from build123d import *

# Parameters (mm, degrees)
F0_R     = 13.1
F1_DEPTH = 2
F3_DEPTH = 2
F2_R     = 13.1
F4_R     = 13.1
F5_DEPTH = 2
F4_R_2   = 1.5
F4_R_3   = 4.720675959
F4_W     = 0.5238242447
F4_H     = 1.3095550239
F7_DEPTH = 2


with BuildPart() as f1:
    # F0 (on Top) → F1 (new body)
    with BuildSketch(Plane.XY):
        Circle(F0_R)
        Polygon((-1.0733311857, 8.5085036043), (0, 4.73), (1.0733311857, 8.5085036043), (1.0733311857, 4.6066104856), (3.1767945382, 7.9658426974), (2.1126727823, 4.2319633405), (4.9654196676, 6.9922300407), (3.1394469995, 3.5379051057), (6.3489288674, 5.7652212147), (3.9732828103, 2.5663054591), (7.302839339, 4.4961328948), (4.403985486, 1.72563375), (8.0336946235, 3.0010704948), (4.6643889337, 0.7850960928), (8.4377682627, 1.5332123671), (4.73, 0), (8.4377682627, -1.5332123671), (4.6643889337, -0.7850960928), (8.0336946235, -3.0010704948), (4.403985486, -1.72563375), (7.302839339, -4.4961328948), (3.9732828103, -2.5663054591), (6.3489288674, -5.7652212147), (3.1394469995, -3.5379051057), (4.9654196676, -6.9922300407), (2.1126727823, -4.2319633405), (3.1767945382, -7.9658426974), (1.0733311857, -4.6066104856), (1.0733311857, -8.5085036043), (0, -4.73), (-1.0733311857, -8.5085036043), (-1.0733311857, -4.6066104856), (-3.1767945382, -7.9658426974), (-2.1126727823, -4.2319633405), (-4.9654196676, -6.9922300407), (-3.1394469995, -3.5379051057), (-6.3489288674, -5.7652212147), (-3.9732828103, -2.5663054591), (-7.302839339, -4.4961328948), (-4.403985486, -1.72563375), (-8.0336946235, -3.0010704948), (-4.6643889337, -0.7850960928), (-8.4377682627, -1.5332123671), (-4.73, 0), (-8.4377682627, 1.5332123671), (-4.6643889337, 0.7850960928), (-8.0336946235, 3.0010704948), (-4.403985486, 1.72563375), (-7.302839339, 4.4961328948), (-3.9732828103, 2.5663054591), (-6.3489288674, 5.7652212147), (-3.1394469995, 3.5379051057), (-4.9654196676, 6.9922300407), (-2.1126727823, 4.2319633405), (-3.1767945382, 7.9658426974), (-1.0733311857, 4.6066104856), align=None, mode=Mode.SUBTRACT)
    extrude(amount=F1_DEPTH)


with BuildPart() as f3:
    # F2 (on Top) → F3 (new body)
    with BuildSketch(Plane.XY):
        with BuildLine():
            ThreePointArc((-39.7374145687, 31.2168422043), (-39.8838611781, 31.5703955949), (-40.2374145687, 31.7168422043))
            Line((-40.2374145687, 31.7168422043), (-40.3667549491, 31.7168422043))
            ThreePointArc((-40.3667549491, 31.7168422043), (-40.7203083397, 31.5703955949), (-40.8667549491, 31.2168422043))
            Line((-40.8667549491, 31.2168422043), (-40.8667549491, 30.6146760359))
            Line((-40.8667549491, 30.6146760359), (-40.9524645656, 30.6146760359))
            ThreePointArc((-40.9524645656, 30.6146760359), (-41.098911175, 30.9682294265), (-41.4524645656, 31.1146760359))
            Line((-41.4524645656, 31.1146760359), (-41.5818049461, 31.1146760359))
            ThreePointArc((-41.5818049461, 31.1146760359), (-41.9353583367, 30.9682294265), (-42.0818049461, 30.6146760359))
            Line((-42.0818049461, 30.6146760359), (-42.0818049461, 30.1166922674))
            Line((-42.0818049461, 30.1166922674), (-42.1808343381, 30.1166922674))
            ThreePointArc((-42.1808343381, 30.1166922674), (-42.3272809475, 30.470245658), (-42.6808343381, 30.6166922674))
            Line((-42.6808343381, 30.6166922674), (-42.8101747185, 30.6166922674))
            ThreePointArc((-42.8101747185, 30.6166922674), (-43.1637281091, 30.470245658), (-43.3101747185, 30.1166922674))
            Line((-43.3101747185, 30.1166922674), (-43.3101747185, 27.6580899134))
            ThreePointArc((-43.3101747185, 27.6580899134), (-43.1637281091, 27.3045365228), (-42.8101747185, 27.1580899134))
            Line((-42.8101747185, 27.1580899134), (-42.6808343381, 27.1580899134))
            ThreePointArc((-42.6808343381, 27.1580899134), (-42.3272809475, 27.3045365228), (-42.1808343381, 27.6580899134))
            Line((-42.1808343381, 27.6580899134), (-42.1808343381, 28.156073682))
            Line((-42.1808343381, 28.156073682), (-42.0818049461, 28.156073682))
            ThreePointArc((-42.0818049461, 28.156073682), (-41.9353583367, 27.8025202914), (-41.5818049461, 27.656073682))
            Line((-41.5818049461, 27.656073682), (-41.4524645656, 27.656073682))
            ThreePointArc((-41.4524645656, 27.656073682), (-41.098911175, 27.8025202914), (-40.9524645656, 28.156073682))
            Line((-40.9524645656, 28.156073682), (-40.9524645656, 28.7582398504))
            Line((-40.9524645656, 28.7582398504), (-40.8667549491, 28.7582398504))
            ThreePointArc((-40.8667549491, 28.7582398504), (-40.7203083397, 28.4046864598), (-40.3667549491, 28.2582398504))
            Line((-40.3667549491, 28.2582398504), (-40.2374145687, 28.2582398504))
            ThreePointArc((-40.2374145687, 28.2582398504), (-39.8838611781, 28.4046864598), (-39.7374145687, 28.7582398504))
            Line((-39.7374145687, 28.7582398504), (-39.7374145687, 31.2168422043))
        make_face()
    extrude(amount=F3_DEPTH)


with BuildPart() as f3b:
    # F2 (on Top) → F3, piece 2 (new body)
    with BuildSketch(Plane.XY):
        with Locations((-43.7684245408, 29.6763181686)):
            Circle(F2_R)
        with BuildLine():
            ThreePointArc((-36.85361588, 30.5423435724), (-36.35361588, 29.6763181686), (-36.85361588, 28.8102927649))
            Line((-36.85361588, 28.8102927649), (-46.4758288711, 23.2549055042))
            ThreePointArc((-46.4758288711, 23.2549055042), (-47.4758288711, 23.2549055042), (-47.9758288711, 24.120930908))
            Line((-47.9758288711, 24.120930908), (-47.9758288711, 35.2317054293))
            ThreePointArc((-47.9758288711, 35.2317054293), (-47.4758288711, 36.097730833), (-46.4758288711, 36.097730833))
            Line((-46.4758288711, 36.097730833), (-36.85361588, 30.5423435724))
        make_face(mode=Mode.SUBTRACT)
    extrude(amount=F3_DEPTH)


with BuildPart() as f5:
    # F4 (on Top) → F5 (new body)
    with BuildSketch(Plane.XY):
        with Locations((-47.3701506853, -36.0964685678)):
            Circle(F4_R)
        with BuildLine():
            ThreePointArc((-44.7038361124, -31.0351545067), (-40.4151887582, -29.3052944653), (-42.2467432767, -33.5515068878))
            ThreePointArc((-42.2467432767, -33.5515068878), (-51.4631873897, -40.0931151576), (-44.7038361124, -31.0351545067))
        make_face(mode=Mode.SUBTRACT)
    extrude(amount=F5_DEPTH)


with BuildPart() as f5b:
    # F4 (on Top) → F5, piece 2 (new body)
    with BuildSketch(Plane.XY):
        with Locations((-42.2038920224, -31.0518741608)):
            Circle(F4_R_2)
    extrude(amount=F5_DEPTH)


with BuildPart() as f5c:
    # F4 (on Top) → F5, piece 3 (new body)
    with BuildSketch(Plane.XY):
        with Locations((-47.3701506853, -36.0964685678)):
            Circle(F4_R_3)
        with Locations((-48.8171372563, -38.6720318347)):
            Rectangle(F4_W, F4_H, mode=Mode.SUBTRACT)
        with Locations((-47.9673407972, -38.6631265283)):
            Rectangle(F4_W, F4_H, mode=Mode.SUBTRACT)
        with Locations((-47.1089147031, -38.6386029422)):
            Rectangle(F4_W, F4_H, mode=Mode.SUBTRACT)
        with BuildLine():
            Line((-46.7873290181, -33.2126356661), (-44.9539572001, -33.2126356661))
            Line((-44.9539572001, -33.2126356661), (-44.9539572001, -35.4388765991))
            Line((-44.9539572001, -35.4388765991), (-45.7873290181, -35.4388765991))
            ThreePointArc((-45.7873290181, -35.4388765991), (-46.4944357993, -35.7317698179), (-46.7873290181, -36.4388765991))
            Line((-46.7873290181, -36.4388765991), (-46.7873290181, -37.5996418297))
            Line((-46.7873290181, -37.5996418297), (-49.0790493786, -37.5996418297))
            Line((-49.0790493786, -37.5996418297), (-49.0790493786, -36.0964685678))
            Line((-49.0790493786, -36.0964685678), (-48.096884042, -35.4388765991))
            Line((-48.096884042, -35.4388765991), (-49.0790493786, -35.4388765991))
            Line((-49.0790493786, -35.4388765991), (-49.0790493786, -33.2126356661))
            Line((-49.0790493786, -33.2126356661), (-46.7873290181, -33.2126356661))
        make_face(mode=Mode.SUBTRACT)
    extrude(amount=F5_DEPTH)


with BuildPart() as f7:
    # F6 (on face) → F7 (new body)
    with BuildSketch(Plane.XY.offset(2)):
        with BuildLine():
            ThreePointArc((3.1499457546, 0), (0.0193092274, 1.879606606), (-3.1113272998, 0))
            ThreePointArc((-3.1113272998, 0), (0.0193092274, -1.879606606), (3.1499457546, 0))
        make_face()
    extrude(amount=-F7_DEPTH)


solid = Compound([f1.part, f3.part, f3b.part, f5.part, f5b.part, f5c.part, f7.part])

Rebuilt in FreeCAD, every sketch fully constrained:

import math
import FreeCAD as App
import Part
import Sketcher
from FreeCAD import Vector
Q = App.Units.Quantity


def add_polygon(sketch, points):
    """Adds a closed chain of lines whose ends are joined by coincident constraints."""
    first, n = sketch.GeometryCount, len(points)
    for a, b in zip(points, points[1:] + points[:1]):
        sketch.addGeometry(Part.LineSegment(App.Vector(*a, 0), App.Vector(*b, 0)), False)
    for i in range(n):
        sketch.addConstraint(Sketcher.Constraint("Coincident", first + i, 2, first + (i + 1) % n, 1))

doc = App.newDocument("Part")
body = doc.addObject("PartDesign::Body", "Body")

sketch1 = body.newObject("Sketcher::SketchObject", "Sketch")
sketch1.AttachmentSupport = (doc.getObject("XY_Plane"), [""])
sketch1.MapMode = "FlatFace"
sketch1.addGeometry(Part.Circle(Vector(0, 0, 0), Vector(0, 0, 1), 13.1), False)
add_polygon(sketch1, [(-1.1, 4.6), (-1.1, 8.5), (0, 4.7), (1.1, 8.5), (1.1, 4.6), (3.2, 8), (2.1, 4.2), (5, 7), (3.1, 3.5), (6.3, 5.8), (4, 2.6), (7.3, 4.5), (4.4, 1.7), (8, 3), (4.7, 0.8), (8.4, 1.5), (4.7, 0), (8.4, -1.5), (4.7, -0.8), (8, -3), (4.4, -1.7), (7.3, -4.5), (4, -2.6), (6.3, -5.8), (3.1, -3.5), (5, -7), (2.1, -4.2), (3.2, -8), (1.1, -4.6), (1.1, -8.5), (0, -4.7), (-1.1, -8.5), (-1.1, -4.6), (-3.2, -8), (-2.1, -4.2), (-5, -7), (-3.1, -3.5), (-6.3, -5.8), (-4, -2.6), (-7.3, -4.5), (-4.4, -1.7), (-8, -3), (-4.7, -0.8), (-8.4, -1.5), (-4.7, 0), (-8.4, 1.5), (-4.7, 0.8), (-8, 3), (-4.4, 1.7), (-7.3, 4.5), (-4, 2.6), (-6.3, 5.8), (-3.1, 3.5), (-5, 7), (-2.1, 4.2), (-3.2, 8)])
sketch1.addConstraint([
    Sketcher.Constraint("Vertical", 1),
    Sketcher.Constraint("Vertical", 4),
    Sketcher.Constraint("Vertical", 29),
    Sketcher.Constraint("Vertical", 32),
    Sketcher.Constraint("Coincident", 0, 3, -1, 1),
    Sketcher.Constraint("Symmetric", 1, 2, 29, 2, -1, 1),
    Sketcher.Constraint("Symmetric", 2, 2, 30, 2, -1, 1),
    Sketcher.Constraint("Symmetric", 3, 2, 31, 2, -1, 1),
    Sketcher.Constraint("Symmetric", 5, 2, 33, 2, -1, 1),
    Sketcher.Constraint("Symmetric", 6, 2, 34, 2, -1, 1),
    Sketcher.Constraint("Symmetric", 7, 2, 35, 2, -1, 1),
    Sketcher.Constraint("Symmetric", 8, 2, 36, 2, -1, 1),
    Sketcher.Constraint("Symmetric", 9, 2, 37, 2, -1, 1),
    Sketcher.Constraint("Symmetric", 10, 2, 38, 2, -1, 1),
    Sketcher.Constraint("Symmetric", 11, 2, 39, 2, -1, 1),
    Sketcher.Constraint("Symmetric", 12, 2, 40, 2, -1, 1),
    Sketcher.Constraint("Symmetric", 13, 2, 41, 2, -1, 1),
    Sketcher.Constraint("Symmetric", 14, 2, 42, 2, -1, 1),
    Sketcher.Constraint("Symmetric", 15, 2, 43, 2, -1, 1),
    Sketcher.Constraint("Symmetric", 16, 2, 44, 2, -1, 1),
    Sketcher.Constraint("Symmetric", 17, 2, 45, 2, -1, 1),
    Sketcher.Constraint("Symmetric", 18, 2, 46, 2, -1, 1),
    Sketcher.Constraint("Symmetric", 19, 2, 47, 2, -1, 1),
    Sketcher.Constraint("Symmetric", 20, 2, 48, 2, -1, 1),
    Sketcher.Constraint("Symmetric", 21, 2, 49, 2, -1, 1),
    Sketcher.Constraint("Symmetric", 22, 2, 50, 2, -1, 1),
    Sketcher.Constraint("Symmetric", 23, 2, 51, 2, -1, 1),
    Sketcher.Constraint("Symmetric", 24, 2, 52, 2, -1, 1),
    Sketcher.Constraint("Symmetric", 25, 2, 53, 2, -1, 1),
    Sketcher.Constraint("Symmetric", 26, 2, 54, 2, -1, 1),
    Sketcher.Constraint("Symmetric", 27, 2, 55, 2, -1, 1),
    Sketcher.Constraint("Symmetric", 1, 2, 3, 2, -2),
    Sketcher.Constraint("Symmetric", 27, 2, 33, 2, -2),
    Sketcher.Constraint("Symmetric", 26, 2, 34, 2, -2),
    Sketcher.Constraint("Symmetric", 25, 2, 35, 2, -2),
    Sketcher.Constraint("Symmetric", 24, 2, 36, 2, -2),
    Sketcher.Constraint("Symmetric", 23, 2, 37, 2, -2),
    Sketcher.Constraint("Symmetric", 22, 2, 38, 2, -2),
    Sketcher.Constraint("Symmetric", 21, 2, 39, 2, -2),
    Sketcher.Constraint("Symmetric", 20, 2, 40, 2, -2),
    Sketcher.Constraint("Symmetric", 19, 2, 41, 2, -2),
    Sketcher.Constraint("Symmetric", 18, 2, 42, 2, -2),
    Sketcher.Constraint("Symmetric", 17, 2, 43, 2, -2),
    Sketcher.Constraint("PointOnObject", 2, 2, -2),
    Sketcher.Constraint("PointOnObject", 16, 2, -1),
    Sketcher.Constraint("Parallel", 5, 33),
    Sketcher.Constraint("Parallel", 28, 56),
    Sketcher.Constraint("Horizontal", 28, 2, 32, 2),
    Sketcher.Constraint("Diameter", 0, Q("26.2 mm")),
    Sketcher.Constraint("DistanceY", -1, 1, 2, 2, Q("4.73 mm")),
    Sketcher.Constraint("DistanceX", -1, 1, 16, 2, Q("4.73 mm")),
    Sketcher.Constraint("Distance", 11, Q("3.8484 mm")),
    Sketcher.Constraint("DistanceY", 10, 2, 8, 2, Q("0.9716 mm")),
    Sketcher.Constraint("DistanceY", 12, 2, 11, 2, Q("2.770499 mm")),
    Sketcher.Constraint("DistanceY", 18, 2, 10, 2, Q("3.351402 mm")),
    Sketcher.Constraint("DistanceY", 29, 2, 24, 2, Q("4.970598 mm")),
    Sketcher.Constraint("Distance", 7, Q("3.969539 mm")),
    Sketcher.Constraint("Distance", 8, Q("3.907242 mm")),
    Sketcher.Constraint("Distance", 14, Q("4.032712 mm")),
    Sketcher.Constraint("DistanceY", 1, 1, 1, 2, Q("3.901893 mm")),
    Sketcher.Constraint("DistanceX", 1, 2, -1, 1, Q("1.073331 mm")),
    Sketcher.Constraint("DistanceY", -1, 1, 4, 2, Q("4.60661 mm")),
    Sketcher.Constraint("DistanceX", -1, 1, 7, 2, Q("4.96542 mm")),
    Sketcher.Constraint("DistanceY", -1, 1, 7, 2, Q("6.99223 mm")),
    Sketcher.Constraint("DistanceX", -1, 1, 9, 2, Q("6.348929 mm")),
    Sketcher.Constraint("DistanceY", -1, 1, 9, 2, Q("5.765221 mm")),
    Sketcher.Constraint("DistanceX", -1, 1, 11, 2, Q("7.302839 mm")),
    Sketcher.Constraint("DistanceY", -1, 1, 13, 2, Q("3.00107 mm")),
    Sketcher.Constraint("DistanceX", -1, 1, 14, 2, Q("4.664389 mm")),
    Sketcher.Constraint("DistanceX", -1, 1, 15, 2, Q("8.437768 mm")),
    Sketcher.Constraint("DistanceY", 5, 2, 3, 2, Q("0.542661 mm")),
    Sketcher.Constraint("DistanceX", 4, 2, 6, 2, Q("1.039342 mm")),
    Sketcher.Constraint("DistanceX", 6, 2, 5, 2, Q("1.064122 mm")),
    Sketcher.Constraint("DistanceX", 6, 2, 10, 2, Q("1.86061 mm")),
    Sketcher.Constraint("DistanceX", 8, 2, 12, 2, Q("1.264538 mm")),
    Sketcher.Constraint("DistanceY", 15, 2, 13, 2, Q("1.467858 mm")),
])
pad1 = body.newObject("PartDesign::Pad", "Pad")
pad1.Profile = sketch1
pad1.Length = 2
body2 = doc.addObject("PartDesign::Body", "Body001")

sketch2 = body2.newObject("Sketcher::SketchObject", "Sketch001")
sketch2.AttachmentSupport = (doc.getObject("XY_Plane001"), [""])
sketch2.MapMode = "FlatFace"
sketch2.addGeometry([
    Part.ArcOfCircle(Part.Circle(Vector(-40.24, 31.22, 0), Vector(0, 0, 1), 0.5), math.radians(0), math.radians(90)),
    Part.LineSegment(Vector(-40.24, 31.72, 0), Vector(-40.37, 31.72, 0)),
    Part.ArcOfCircle(Part.Circle(Vector(-40.37, 31.22, 0), Vector(0, 0, 1), 0.5), math.radians(90), math.radians(180)),
    Part.LineSegment(Vector(-40.87, 31.22, 0), Vector(-40.87, 30.61, 0)),
    Part.LineSegment(Vector(-40.87, 30.61, 0), Vector(-40.95, 30.61, 0)),
    Part.ArcOfCircle(Part.Circle(Vector(-41.45, 30.61, 0), Vector(0, 0, 1), 0.5), math.radians(0), math.radians(90)),
    Part.LineSegment(Vector(-41.45, 31.11, 0), Vector(-41.58, 31.11, 0)),
    Part.ArcOfCircle(Part.Circle(Vector(-41.58, 30.61, 0), Vector(0, 0, 1), 0.5), math.radians(90), math.radians(180)),
    Part.LineSegment(Vector(-42.08, 30.61, 0), Vector(-42.08, 30.12, 0)),
    Part.LineSegment(Vector(-42.08, 30.12, 0), Vector(-42.18, 30.12, 0)),
    Part.ArcOfCircle(Part.Circle(Vector(-42.68, 30.12, 0), Vector(0, 0, 1), 0.5), math.radians(0), math.radians(90)),
    Part.LineSegment(Vector(-42.68, 30.62, 0), Vector(-42.81, 30.62, 0)),
    Part.ArcOfCircle(Part.Circle(Vector(-42.81, 30.12, 0), Vector(0, 0, 1), 0.5), math.radians(90), math.radians(180)),
    Part.LineSegment(Vector(-43.31, 30.12, 0), Vector(-43.31, 27.66, 0)),
    Part.ArcOfCircle(Part.Circle(Vector(-42.81, 27.66, 0), Vector(0, 0, 1), 0.5), math.radians(180), math.radians(270)),
    Part.LineSegment(Vector(-42.81, 27.16, 0), Vector(-42.68, 27.16, 0)),
    Part.ArcOfCircle(Part.Circle(Vector(-42.68, 27.66, 0), Vector(0, 0, 1), 0.5), math.radians(-90), math.radians(0)),
    Part.LineSegment(Vector(-42.18, 27.66, 0), Vector(-42.18, 28.16, 0)),
    Part.LineSegment(Vector(-42.18, 28.16, 0), Vector(-42.08, 28.16, 0)),
    Part.ArcOfCircle(Part.Circle(Vector(-41.58, 28.16, 0), Vector(0, 0, 1), 0.5), math.radians(180), math.radians(270)),
    Part.LineSegment(Vector(-41.58, 27.66, 0), Vector(-41.45, 27.66, 0)),
    Part.ArcOfCircle(Part.Circle(Vector(-41.45, 28.16, 0), Vector(0, 0, 1), 0.5), math.radians(-90), math.radians(0)),
    Part.LineSegment(Vector(-40.95, 28.16, 0), Vector(-40.95, 28.76, 0)),
    Part.LineSegment(Vector(-40.95, 28.76, 0), Vector(-40.87, 28.76, 0)),
    Part.ArcOfCircle(Part.Circle(Vector(-40.37, 28.76, 0), Vector(0, 0, 1), 0.5), math.radians(180), math.radians(270)),
    Part.LineSegment(Vector(-40.37, 28.26, 0), Vector(-40.24, 28.26, 0)),
    Part.ArcOfCircle(Part.Circle(Vector(-40.24, 28.76, 0), Vector(0, 0, 1), 0.5), math.radians(-90), math.radians(0)),
    Part.LineSegment(Vector(-39.74, 28.76, 0), Vector(-39.74, 31.22, 0)),
], False)
sketch2.addConstraint([
    Sketcher.Constraint("Tangent", 0, 2, 1, 1),
    Sketcher.Constraint("Tangent", 1, 2, 2, 1),
    Sketcher.Constraint("Tangent", 2, 2, 3, 1),
    Sketcher.Constraint("Coincident", 3, 2, 4, 1),
    Sketcher.Constraint("Coincident", 4, 2, 5, 1),
    Sketcher.Constraint("Tangent", 5, 2, 6, 1),
    Sketcher.Constraint("Tangent", 6, 2, 7, 1),
    Sketcher.Constraint("Tangent", 7, 2, 8, 1),
    Sketcher.Constraint("Coincident", 8, 2, 9, 1),
    Sketcher.Constraint("Coincident", 9, 2, 10, 1),
    Sketcher.Constraint("Tangent", 10, 2, 11, 1),
    Sketcher.Constraint("Tangent", 11, 2, 12, 1),
    Sketcher.Constraint("Tangent", 12, 2, 13, 1),
    Sketcher.Constraint("Tangent", 13, 2, 14, 1),
    Sketcher.Constraint("Tangent", 14, 2, 15, 1),
    Sketcher.Constraint("Tangent", 15, 2, 16, 1),
    Sketcher.Constraint("Tangent", 16, 2, 17, 1),
    Sketcher.Constraint("Coincident", 17, 2, 18, 1),
    Sketcher.Constraint("Coincident", 18, 2, 19, 1),
    Sketcher.Constraint("Tangent", 19, 2, 20, 1),
    Sketcher.Constraint("Tangent", 20, 2, 21, 1),
    Sketcher.Constraint("Tangent", 21, 2, 22, 1),
    Sketcher.Constraint("Coincident", 22, 2, 23, 1),
    Sketcher.Constraint("Coincident", 23, 2, 24, 1),
    Sketcher.Constraint("Tangent", 24, 2, 25, 1),
    Sketcher.Constraint("Tangent", 25, 2, 26, 1),
    Sketcher.Constraint("Tangent", 26, 2, 27, 1),
    Sketcher.Constraint("Tangent", 27, 2, 0, 1),
    Sketcher.Constraint("Horizontal", 1),
    Sketcher.Constraint("Vertical", 3),
    Sketcher.Constraint("Horizontal", 4),
    Sketcher.Constraint("Horizontal", 6),
    Sketcher.Constraint("Vertical", 8),
    Sketcher.Constraint("Horizontal", 9),
    Sketcher.Constraint("Horizontal", 11),
    Sketcher.Constraint("Vertical", 13),
    Sketcher.Constraint("Horizontal", 15),
    Sketcher.Constraint("Vertical", 17),
    Sketcher.Constraint("Horizontal", 18),
    Sketcher.Constraint("Horizontal", 20),
    Sketcher.Constraint("Vertical", 22),
    Sketcher.Constraint("Horizontal", 23),
    Sketcher.Constraint("Horizontal", 25),
    Sketcher.Constraint("Vertical", 27),
    Sketcher.Constraint("Equal", 0, 2),
    Sketcher.Constraint("Equal", 2, 5),
    Sketcher.Constraint("Equal", 5, 7),
    Sketcher.Constraint("Equal", 7, 10),
    Sketcher.Constraint("Equal", 10, 12),
    Sketcher.Constraint("Equal", 12, 14),
    Sketcher.Constraint("Equal", 14, 16),
    Sketcher.Constraint("Equal", 16, 19),
    Sketcher.Constraint("Equal", 19, 21),
    Sketcher.Constraint("Equal", 21, 24),
    Sketcher.Constraint("Equal", 24, 26),
    Sketcher.Constraint("Horizontal", 7, 3, 3, 2),
    Sketcher.Constraint("Horizontal", 12, 3, 8, 2),
    Sketcher.Constraint("Horizontal", 21, 3, 17, 2),
    Sketcher.Constraint("Horizontal", 26, 3, 22, 2),
    Sketcher.Constraint("Vertical", 10, 3, 16, 3),
    Sketcher.Constraint("Vertical", 7, 3, 19, 3),
    Sketcher.Constraint("Vertical", 5, 3, 21, 3),
    Sketcher.Constraint("Vertical", 2, 3, 24, 3),
    Sketcher.Constraint("Equal", 1, 6),
    Sketcher.Constraint("Equal", 6, 11),
    Sketcher.Constraint("Equal", 8, 17),
    Sketcher.Constraint("Equal", 3, 22),
    Sketcher.Constraint("Radius", 0, Q("0.5 mm")),
    Sketcher.Constraint("DistanceX", 1, 2, 1, 1, Q("0.12934 mm")),
    Sketcher.Constraint("DistanceX", 4, 2, 4, 1, Q("0.08571 mm")),
    Sketcher.Constraint("DistanceX", 9, 2, 9, 1, Q("0.099029 mm")),
    Sketcher.Constraint("DistanceY", 3, 2, 3, 1, Q("0.602166 mm")),
    Sketcher.Constraint("DistanceY", 8, 2, 8, 1, Q("0.497984 mm")),
    Sketcher.Constraint("DistanceY", 13, 2, 13, 1, Q("2.458602 mm")),
    Sketcher.Constraint("DistanceY", -1, 1, 14, 3, Q("27.65809 mm")),
    Sketcher.Constraint("DistanceX", 0, 3, -1, 1, Q("40.237415 mm")),
])
pad2 = body2.newObject("PartDesign::Pad", "Pad001")
pad2.Profile = sketch2
pad2.Length = 2
body3 = doc.addObject("PartDesign::Body", "Body002")

sketch3 = body3.newObject("Sketcher::SketchObject", "Sketch002")
sketch3.AttachmentSupport = (doc.getObject("XY_Plane002"), [""])
sketch3.MapMode = "FlatFace"
sketch3.addGeometry([
    Part.Circle(Vector(-43.8, 29.7, 0), Vector(0, 0, 1), 13.1),
    Part.LineSegment(Vector(-46.5, 36.1, 0), Vector(-36.9, 30.5, 0)),
    Part.ArcOfCircle(Part.Circle(Vector(-37.4, 29.7, 0), Vector(0, 0, 1), 1), math.radians(-60), math.radians(60)),
    Part.LineSegment(Vector(-36.9, 28.8, 0), Vector(-46.5, 23.3, 0)),
    Part.ArcOfCircle(Part.Circle(Vector(-47, 24.1, 0), Vector(0, 0, 1), 1), math.radians(180), math.radians(300)),
    Part.LineSegment(Vector(-48, 24.1, 0), Vector(-48, 35.2, 0)),
    Part.ArcOfCircle(Part.Circle(Vector(-47, 35.2, 0), Vector(0, 0, 1), 1), math.radians(60), math.radians(180)),
], False)
sketch3.addConstraint([
    Sketcher.Constraint("Tangent", 1, 2, 2, 2),
    Sketcher.Constraint("Tangent", 2, 1, 3, 1),
    Sketcher.Constraint("Tangent", 3, 2, 4, 2),
    Sketcher.Constraint("Tangent", 4, 1, 5, 1),
    Sketcher.Constraint("Tangent", 5, 2, 6, 2),
    Sketcher.Constraint("Tangent", 6, 1, 1, 1),
    Sketcher.Constraint("Vertical", 5),
    Sketcher.Constraint("Equal", 2, 4),
    Sketcher.Constraint("Equal", 4, 6),
    Sketcher.Constraint("Horizontal", 0, 3, 2, 3),
    Sketcher.Constraint("Vertical", 1, 2, 2, 1),
    Sketcher.Constraint("Radius", 2, Q("1 mm")),
    Sketcher.Constraint("Diameter", 0, Q("26.2 mm")),
    Sketcher.Constraint("Angle", 1, Q("-30 deg")),
    Sketcher.Constraint("DistanceY", 3, 2, 6, 3, Q("11.9768 mm")),
    Sketcher.Constraint("DistanceY", -1, 1, 0, 3, Q("29.676318 mm")),
    Sketcher.Constraint("DistanceX", 4, 3, -1, 1, Q("46.975829 mm")),
    Sketcher.Constraint("DistanceX", 0, 3, 2, 3, Q("6.414809 mm")),
])
pad3 = body3.newObject("PartDesign::Pad", "Pad002")
pad3.Profile = sketch3
pad3.Length = 2
body4 = doc.addObject("PartDesign::Body", "Body003")

sketch4 = body4.newObject("Sketcher::SketchObject", "Sketch003")
sketch4.AttachmentSupport = (doc.getObject("XY_Plane003"), [""])
sketch4.MapMode = "FlatFace"
sketch4.addGeometry([
    Part.Circle(Vector(-47.4, -36.1, 0), Vector(0, 0, 1), 13.1),
    Part.ArcOfCircle(Part.Circle(Vector(-47.4, -36.1, 0), Vector(0, 0, 1), 5.7), math.radians(62), math.radians(386)),
    Part.ArcOfCircle(Part.Circle(Vector(-42.2, -31.1, 0), Vector(0, 0, 1), 2.5), math.radians(-91), math.radians(180)),
], False)
sketch4.addConstraint([
    Sketcher.Constraint("Coincident", 1, 1, 2, 2),
    Sketcher.Constraint("Coincident", 2, 1, 1, 2),
    Sketcher.Constraint("Coincident", 1, 3, 0, 3),
    Sketcher.Constraint("Diameter", 0, Q("26.2 mm")),
    Sketcher.Constraint("Radius", 2, Q("2.5 mm")),
    Sketcher.Constraint("Radius", 1, Q("5.720676 mm")),
    Sketcher.Constraint("DistanceX", 0, 3, -1, 1, Q("47.370151 mm")),
    Sketcher.Constraint("DistanceY", 0, 3, -1, 1, Q("36.096469 mm")),
    Sketcher.Constraint("DistanceX", 0, 3, 2, 3, Q("5.166259 mm")),
    Sketcher.Constraint("DistanceY", 2, 3, 1, 1, Q("0.01672 mm")),
])
pad4 = body4.newObject("PartDesign::Pad", "Pad003")
pad4.Profile = sketch4
pad4.Length = 2
body5 = doc.addObject("PartDesign::Body", "Body004")

sketch5 = body5.newObject("Sketcher::SketchObject", "Sketch004")
sketch5.AttachmentSupport = (doc.getObject("XY_Plane004"), [""])
sketch5.MapMode = "FlatFace"
sketch5.addGeometry(Part.Circle(Vector(-42.2, -31.1, 0), Vector(0, 0, 1), 1.5), False)
sketch5.addConstraint([
    Sketcher.Constraint("Diameter", 0, Q("3 mm")),
    Sketcher.Constraint("DistanceX", 0, 3, -1, 1, Q("42.203892 mm")),
    Sketcher.Constraint("DistanceY", 0, 3, -1, 1, Q("31.051874 mm")),
])
pad5 = body5.newObject("PartDesign::Pad", "Pad004")
pad5.Profile = sketch5
pad5.Length = 2
body6 = doc.addObject("PartDesign::Body", "Body005")

sketch6 = body6.newObject("Sketcher::SketchObject", "Sketch005")
sketch6.AttachmentSupport = (doc.getObject("XY_Plane005"), [""])
sketch6.MapMode = "FlatFace"
sketch6.addGeometry(Part.Circle(Vector(-47.4, -36.1, 0), Vector(0, 0, 1), 4.7), False)
add_polygon(sketch6, [(-48.6, -39.3), (-49.1, -39.3), (-49.1, -38), (-48.6, -38)])
add_polygon(sketch6, [(-47.7, -39.3), (-48.2, -39.3), (-48.2, -38), (-47.7, -38)])
add_polygon(sketch6, [(-46.8, -39.3), (-47.4, -39.3), (-47.4, -38), (-46.8, -38)])
sketch6.addGeometry(Part.LineSegment(Vector(-49.1, -33.2, 0), Vector(-45, -33.2, 0)), False)
sketch6.addGeometry(Part.LineSegment(Vector(-45, -33.2, 0), Vector(-45, -35.4, 0)), False)
sketch6.addGeometry(Part.LineSegment(Vector(-45, -35.4, 0), Vector(-45.8, -35.4, 0)), False)
sketch6.addGeometry(Part.ArcOfCircle(Part.Circle(Vector(-45.8, -36.4, 0), Vector(0, 0, 1), 1), math.radians(90), math.radians(180)), False)
sketch6.addGeometry(Part.LineSegment(Vector(-46.8, -36.4, 0), Vector(-46.8, -37.6, 0)), False)
sketch6.addGeometry(Part.LineSegment(Vector(-46.8, -37.6, 0), Vector(-49.1, -37.6, 0)), False)
sketch6.addGeometry(Part.LineSegment(Vector(-49.1, -37.6, 0), Vector(-49.1, -36.1, 0)), False)
sketch6.addGeometry(Part.LineSegment(Vector(-49.1, -36.1, 0), Vector(-48.1, -35.4, 0)), False)
sketch6.addGeometry(Part.LineSegment(Vector(-48.1, -35.4, 0), Vector(-49.1, -35.4, 0)), False)
sketch6.addGeometry(Part.LineSegment(Vector(-49.1, -35.4, 0), Vector(-49.1, -33.2, 0)), False)
sketch6.addConstraint([
    Sketcher.Constraint("Coincident", 13, 2, 14, 1),
    Sketcher.Constraint("Coincident", 14, 2, 15, 1),
    Sketcher.Constraint("Tangent", 15, 2, 16, 1),
    Sketcher.Constraint("Tangent", 16, 2, 17, 1),
    Sketcher.Constraint("Coincident", 17, 2, 18, 1),
    Sketcher.Constraint("Coincident", 18, 2, 19, 1),
    Sketcher.Constraint("Coincident", 19, 2, 20, 1),
    Sketcher.Constraint("Coincident", 20, 2, 21, 1),
    Sketcher.Constraint("Coincident", 21, 2, 22, 1),
    Sketcher.Constraint("Coincident", 22, 2, 13, 1),
    Sketcher.Constraint("Horizontal", 1),
    Sketcher.Constraint("Vertical", 2),
    Sketcher.Constraint("Horizontal", 3),
    Sketcher.Constraint("Vertical", 4),
    Sketcher.Constraint("Horizontal", 5),
    Sketcher.Constraint("Vertical", 6),
    Sketcher.Constraint("Horizontal", 7),
    Sketcher.Constraint("Vertical", 8),
    Sketcher.Constraint("Horizontal", 9),
    Sketcher.Constraint("Vertical", 10),
    Sketcher.Constraint("Horizontal", 11),
    Sketcher.Constraint("Vertical", 12),
    Sketcher.Constraint("Horizontal", 13),
    Sketcher.Constraint("Vertical", 14),
    Sketcher.Constraint("Horizontal", 15),
    Sketcher.Constraint("Vertical", 17),
    Sketcher.Constraint("Horizontal", 18),
    Sketcher.Constraint("Vertical", 19),
    Sketcher.Constraint("Horizontal", 21),
    Sketcher.Constraint("Vertical", 22),
    Sketcher.Constraint("Horizontal", 0, 3, 19, 2),
    Sketcher.Constraint("Horizontal", 15, 2, 20, 2),
    Sketcher.Constraint("Vertical", 2, 2, 18, 2),
    Sketcher.Constraint("Vertical", 19, 2, 21, 2),
    Sketcher.Constraint("Equal", 3, 5),
    Sketcher.Constraint("Equal", 7, 9),
    Sketcher.Constraint("Equal", 4, 6),
    Sketcher.Constraint("Equal", 8, 10),
    Sketcher.Constraint("Radius", 16, Q("1 mm")),
    Sketcher.Constraint("Diameter", 0, Q("9.441352 mm")),
    Sketcher.Constraint("DistanceX", 15, 2, 15, 1, Q("0.833372 mm")),
    Sketcher.Constraint("DistanceX", 18, 2, 18, 1, Q("2.29172 mm")),
    Sketcher.Constraint("DistanceY", 14, 2, 14, 1, Q("2.226241 mm")),
    Sketcher.Constraint("DistanceX", 1, 2, 0, 3, Q("1.708899 mm")),
    Sketcher.Constraint("DistanceX", 8, 2, 9, 2, Q("0.334602 mm")),
    Sketcher.Constraint("DistanceX", 4, 2, 9, 2, Q("1.184398 mm")),
    Sketcher.Constraint("DistanceX", 7, 2, 17, 2, Q("0.9181 mm")),
    Sketcher.Constraint("Distance", 20, Q("1.18198 mm")),
    Sketcher.Constraint("DistanceX", 21, 2, 21, 1, Q("0.982165 mm")),
    Sketcher.Constraint("DistanceY", 2, 1, 2, 2, Q("1.309555 mm")),
    Sketcher.Constraint("DistanceY", 17, 2, 17, 1, Q("1.160765 mm")),
    Sketcher.Constraint("DistanceX", 0, 3, -1, 1, Q("47.370151 mm")),
    Sketcher.Constraint("DistanceY", 0, 3, -1, 1, Q("36.096469 mm")),
    Sketcher.Constraint("DistanceY", 1, 2, -1, 1, Q("39.326809 mm")),
    Sketcher.Constraint("DistanceY", 6, 2, -1, 1, Q("38.008349 mm")),
    Sketcher.Constraint("DistanceY", 9, 2, -1, 1, Q("39.29338 mm")),
])
pad6 = body6.newObject("PartDesign::Pad", "Pad005")
pad6.Profile = sketch6
pad6.Length = 2
body7 = doc.addObject("PartDesign::Body", "Body006")

sketch7 = body7.newObject("Sketcher::SketchObject", "Sketch006")
sketch7.AttachmentSupport = (doc.getObject("XY_Plane006"), [""])
sketch7.MapMode = "FlatFace"
sketch7.AttachmentOffset = App.Placement(Vector(0, 0, 2), App.Rotation())
sketch7.addGeometry([
    Part.ArcOfCircle(Part.Circle(Vector(0, -1.7, 0), Vector(0, 0, 1), 3.5), math.radians(28), math.radians(152)),
    Part.ArcOfCircle(Part.Circle(Vector(0, 1.7, 0), Vector(0, 0, 1), 3.5), math.radians(-152), math.radians(-28)),
], False)
sketch7.addConstraint([
    Sketcher.Constraint("Coincident", 0, 1, 1, 2),
    Sketcher.Constraint("Coincident", 1, 1, 0, 2),
    Sketcher.Constraint("Equal", 0, 1),
    Sketcher.Constraint("Symmetric", 0, 3, 1, 3, -1),
    Sketcher.Constraint("Radius", 0, Q("3.546967 mm")),
    Sketcher.Constraint("DistanceX", -1, 1, 0, 3, Q("0.019309 mm")),
    Sketcher.Constraint("DistanceY", 0, 3, -1, 1, Q("1.667361 mm")),
])
pad7 = body7.newObject("PartDesign::Pad", "Pad006")
pad7.Profile = sketch7
pad7.Length = 2
pad7.Reversed = True

doc.recompute()
